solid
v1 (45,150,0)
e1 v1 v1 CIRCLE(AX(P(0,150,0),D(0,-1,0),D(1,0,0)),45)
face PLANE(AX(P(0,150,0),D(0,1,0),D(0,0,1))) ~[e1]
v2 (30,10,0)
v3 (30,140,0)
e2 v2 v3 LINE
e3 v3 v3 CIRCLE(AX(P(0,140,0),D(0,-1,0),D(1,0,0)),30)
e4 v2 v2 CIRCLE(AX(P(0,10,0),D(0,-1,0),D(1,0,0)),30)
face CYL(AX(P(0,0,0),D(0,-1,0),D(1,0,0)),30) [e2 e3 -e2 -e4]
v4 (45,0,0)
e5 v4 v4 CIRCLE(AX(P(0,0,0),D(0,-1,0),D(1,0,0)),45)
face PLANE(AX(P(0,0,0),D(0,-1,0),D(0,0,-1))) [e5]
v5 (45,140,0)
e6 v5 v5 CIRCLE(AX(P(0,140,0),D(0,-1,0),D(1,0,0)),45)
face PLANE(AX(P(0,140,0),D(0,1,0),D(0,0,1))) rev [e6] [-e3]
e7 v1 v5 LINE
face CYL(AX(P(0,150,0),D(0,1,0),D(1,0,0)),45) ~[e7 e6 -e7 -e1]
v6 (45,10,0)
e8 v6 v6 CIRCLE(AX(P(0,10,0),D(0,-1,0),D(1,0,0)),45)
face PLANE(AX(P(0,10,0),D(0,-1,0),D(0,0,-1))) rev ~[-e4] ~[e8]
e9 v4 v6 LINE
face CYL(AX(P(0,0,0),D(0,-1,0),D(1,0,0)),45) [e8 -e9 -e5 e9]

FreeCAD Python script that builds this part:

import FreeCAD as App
import Part
import Sketcher
from FreeCAD import Vector

doc = App.newDocument("Part")
body = doc.addObject("PartDesign::Body", "Body")

# Sketch on XZ plane
sketch1 = body.newObject("Sketcher::SketchObject", "Sketch")
sketch1.AttachmentSupport = (doc.getObject("XZ_Plane"), [""])
sketch1.MapMode = "FlatFace"
sketch1.addGeometry(Part.Circle(Vector(0, 0, 0), Vector(0, 0, 1), 30), False)
sketch1.addConstraint(Sketcher.Constraint("Coincident", 0, 3, -1, 1))
sketch1.addConstraint(Sketcher.Constraint("Diameter", 0, 60.0))
pad1 = body.newObject("PartDesign::Pad", "Pad")
pad1.Profile = sketch1
pad1.Length = 150
pad1.Reversed = True

# Sketch on XZ plane
sketch2 = body.newObject("Sketcher::SketchObject", "Sketch001")
sketch2.AttachmentSupport = (doc.getObject("XZ_Plane"), [""])
sketch2.MapMode = "FlatFace"
sketch2.addGeometry(Part.Circle(Vector(0, 0, 0), Vector(0, 0, 1), 45), False)
sketch2.addConstraint(Sketcher.Constraint("Coincident", 0, 3, -1, 1))
sketch2.addConstraint(Sketcher.Constraint("Diameter", 0, 90.0))
pad2 = body.newObject("PartDesign::Pad", "Pad001")
pad2.Profile = sketch2
pad2.Length = 10
pad2.Reversed = True
doc.recompute()

datumplane = body.newObject("PartDesign::Plane", "DatumPlane")
datumplane.AttachmentSupport = (doc.getObject("XZ_Plane"), [""])
datumplane.MapMode = "FlatFace"
datumplane.AttachmentOffset = App.Placement(Vector(0, 0, -75), App.Rotation())
mirrored = body.newObject("PartDesign::Mirrored", "Mirrored")
mirrored.Originals = [pad2]
mirrored.MirrorPlane = (datumplane, [""])
body.Tip = mirrored

doc.recompute()
